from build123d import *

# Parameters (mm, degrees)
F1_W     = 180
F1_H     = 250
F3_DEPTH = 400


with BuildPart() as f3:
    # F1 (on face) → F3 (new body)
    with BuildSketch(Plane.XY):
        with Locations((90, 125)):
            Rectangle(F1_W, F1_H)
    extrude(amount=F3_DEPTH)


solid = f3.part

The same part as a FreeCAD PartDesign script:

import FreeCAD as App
import Part
import Sketcher


def add_polygon(sketch, points):
    """Adds a closed chain of lines whose ends are joined by coincident constraints."""
    first, n = sketch.GeometryCount, len(points)
    for a, b in zip(points, points[1:] + points[:1]):
        sketch.addGeometry(Part.LineSegment(App.Vector(*a, 0), App.Vector(*b, 0)), False)
    for i in range(n):
        sketch.addConstraint(Sketcher.Constraint("Coincident", first + i, 2, first + (i + 1) % n, 1))

doc = App.newDocument("Part")
body = doc.addObject("PartDesign::Body", "Body")

# Sketch on XY plane
sketch1 = body.newObject("Sketcher::SketchObject", "Sketch")
sketch1.AttachmentSupport = (doc.getObject("XY_Plane"), [""])
sketch1.MapMode = "FlatFace"
add_polygon(sketch1, [(0, 250), (0, 0), (180, 0), (180, 250)])  # lines 0-3
sketch1.addConstraint([
    Sketcher.Constraint("Vertical", 0),
    Sketcher.Constraint("Horizontal", 1),
    Sketcher.Constraint("Vertical", 2),
    Sketcher.Constraint("Horizontal", 3),
    Sketcher.Constraint("Coincident", 0, 2, -1, 1),
    Sketcher.Constraint("DistanceX", 1, 1, 1, 2, 180.0),
    Sketcher.Constraint("DistanceY", 0, 2, 0, 1, 250.0),
])
pad1 = body.newObject("PartDesign::Pad", "Pad")
pad1.Profile = sketch1
pad1.Length = 400

doc.recompute()
